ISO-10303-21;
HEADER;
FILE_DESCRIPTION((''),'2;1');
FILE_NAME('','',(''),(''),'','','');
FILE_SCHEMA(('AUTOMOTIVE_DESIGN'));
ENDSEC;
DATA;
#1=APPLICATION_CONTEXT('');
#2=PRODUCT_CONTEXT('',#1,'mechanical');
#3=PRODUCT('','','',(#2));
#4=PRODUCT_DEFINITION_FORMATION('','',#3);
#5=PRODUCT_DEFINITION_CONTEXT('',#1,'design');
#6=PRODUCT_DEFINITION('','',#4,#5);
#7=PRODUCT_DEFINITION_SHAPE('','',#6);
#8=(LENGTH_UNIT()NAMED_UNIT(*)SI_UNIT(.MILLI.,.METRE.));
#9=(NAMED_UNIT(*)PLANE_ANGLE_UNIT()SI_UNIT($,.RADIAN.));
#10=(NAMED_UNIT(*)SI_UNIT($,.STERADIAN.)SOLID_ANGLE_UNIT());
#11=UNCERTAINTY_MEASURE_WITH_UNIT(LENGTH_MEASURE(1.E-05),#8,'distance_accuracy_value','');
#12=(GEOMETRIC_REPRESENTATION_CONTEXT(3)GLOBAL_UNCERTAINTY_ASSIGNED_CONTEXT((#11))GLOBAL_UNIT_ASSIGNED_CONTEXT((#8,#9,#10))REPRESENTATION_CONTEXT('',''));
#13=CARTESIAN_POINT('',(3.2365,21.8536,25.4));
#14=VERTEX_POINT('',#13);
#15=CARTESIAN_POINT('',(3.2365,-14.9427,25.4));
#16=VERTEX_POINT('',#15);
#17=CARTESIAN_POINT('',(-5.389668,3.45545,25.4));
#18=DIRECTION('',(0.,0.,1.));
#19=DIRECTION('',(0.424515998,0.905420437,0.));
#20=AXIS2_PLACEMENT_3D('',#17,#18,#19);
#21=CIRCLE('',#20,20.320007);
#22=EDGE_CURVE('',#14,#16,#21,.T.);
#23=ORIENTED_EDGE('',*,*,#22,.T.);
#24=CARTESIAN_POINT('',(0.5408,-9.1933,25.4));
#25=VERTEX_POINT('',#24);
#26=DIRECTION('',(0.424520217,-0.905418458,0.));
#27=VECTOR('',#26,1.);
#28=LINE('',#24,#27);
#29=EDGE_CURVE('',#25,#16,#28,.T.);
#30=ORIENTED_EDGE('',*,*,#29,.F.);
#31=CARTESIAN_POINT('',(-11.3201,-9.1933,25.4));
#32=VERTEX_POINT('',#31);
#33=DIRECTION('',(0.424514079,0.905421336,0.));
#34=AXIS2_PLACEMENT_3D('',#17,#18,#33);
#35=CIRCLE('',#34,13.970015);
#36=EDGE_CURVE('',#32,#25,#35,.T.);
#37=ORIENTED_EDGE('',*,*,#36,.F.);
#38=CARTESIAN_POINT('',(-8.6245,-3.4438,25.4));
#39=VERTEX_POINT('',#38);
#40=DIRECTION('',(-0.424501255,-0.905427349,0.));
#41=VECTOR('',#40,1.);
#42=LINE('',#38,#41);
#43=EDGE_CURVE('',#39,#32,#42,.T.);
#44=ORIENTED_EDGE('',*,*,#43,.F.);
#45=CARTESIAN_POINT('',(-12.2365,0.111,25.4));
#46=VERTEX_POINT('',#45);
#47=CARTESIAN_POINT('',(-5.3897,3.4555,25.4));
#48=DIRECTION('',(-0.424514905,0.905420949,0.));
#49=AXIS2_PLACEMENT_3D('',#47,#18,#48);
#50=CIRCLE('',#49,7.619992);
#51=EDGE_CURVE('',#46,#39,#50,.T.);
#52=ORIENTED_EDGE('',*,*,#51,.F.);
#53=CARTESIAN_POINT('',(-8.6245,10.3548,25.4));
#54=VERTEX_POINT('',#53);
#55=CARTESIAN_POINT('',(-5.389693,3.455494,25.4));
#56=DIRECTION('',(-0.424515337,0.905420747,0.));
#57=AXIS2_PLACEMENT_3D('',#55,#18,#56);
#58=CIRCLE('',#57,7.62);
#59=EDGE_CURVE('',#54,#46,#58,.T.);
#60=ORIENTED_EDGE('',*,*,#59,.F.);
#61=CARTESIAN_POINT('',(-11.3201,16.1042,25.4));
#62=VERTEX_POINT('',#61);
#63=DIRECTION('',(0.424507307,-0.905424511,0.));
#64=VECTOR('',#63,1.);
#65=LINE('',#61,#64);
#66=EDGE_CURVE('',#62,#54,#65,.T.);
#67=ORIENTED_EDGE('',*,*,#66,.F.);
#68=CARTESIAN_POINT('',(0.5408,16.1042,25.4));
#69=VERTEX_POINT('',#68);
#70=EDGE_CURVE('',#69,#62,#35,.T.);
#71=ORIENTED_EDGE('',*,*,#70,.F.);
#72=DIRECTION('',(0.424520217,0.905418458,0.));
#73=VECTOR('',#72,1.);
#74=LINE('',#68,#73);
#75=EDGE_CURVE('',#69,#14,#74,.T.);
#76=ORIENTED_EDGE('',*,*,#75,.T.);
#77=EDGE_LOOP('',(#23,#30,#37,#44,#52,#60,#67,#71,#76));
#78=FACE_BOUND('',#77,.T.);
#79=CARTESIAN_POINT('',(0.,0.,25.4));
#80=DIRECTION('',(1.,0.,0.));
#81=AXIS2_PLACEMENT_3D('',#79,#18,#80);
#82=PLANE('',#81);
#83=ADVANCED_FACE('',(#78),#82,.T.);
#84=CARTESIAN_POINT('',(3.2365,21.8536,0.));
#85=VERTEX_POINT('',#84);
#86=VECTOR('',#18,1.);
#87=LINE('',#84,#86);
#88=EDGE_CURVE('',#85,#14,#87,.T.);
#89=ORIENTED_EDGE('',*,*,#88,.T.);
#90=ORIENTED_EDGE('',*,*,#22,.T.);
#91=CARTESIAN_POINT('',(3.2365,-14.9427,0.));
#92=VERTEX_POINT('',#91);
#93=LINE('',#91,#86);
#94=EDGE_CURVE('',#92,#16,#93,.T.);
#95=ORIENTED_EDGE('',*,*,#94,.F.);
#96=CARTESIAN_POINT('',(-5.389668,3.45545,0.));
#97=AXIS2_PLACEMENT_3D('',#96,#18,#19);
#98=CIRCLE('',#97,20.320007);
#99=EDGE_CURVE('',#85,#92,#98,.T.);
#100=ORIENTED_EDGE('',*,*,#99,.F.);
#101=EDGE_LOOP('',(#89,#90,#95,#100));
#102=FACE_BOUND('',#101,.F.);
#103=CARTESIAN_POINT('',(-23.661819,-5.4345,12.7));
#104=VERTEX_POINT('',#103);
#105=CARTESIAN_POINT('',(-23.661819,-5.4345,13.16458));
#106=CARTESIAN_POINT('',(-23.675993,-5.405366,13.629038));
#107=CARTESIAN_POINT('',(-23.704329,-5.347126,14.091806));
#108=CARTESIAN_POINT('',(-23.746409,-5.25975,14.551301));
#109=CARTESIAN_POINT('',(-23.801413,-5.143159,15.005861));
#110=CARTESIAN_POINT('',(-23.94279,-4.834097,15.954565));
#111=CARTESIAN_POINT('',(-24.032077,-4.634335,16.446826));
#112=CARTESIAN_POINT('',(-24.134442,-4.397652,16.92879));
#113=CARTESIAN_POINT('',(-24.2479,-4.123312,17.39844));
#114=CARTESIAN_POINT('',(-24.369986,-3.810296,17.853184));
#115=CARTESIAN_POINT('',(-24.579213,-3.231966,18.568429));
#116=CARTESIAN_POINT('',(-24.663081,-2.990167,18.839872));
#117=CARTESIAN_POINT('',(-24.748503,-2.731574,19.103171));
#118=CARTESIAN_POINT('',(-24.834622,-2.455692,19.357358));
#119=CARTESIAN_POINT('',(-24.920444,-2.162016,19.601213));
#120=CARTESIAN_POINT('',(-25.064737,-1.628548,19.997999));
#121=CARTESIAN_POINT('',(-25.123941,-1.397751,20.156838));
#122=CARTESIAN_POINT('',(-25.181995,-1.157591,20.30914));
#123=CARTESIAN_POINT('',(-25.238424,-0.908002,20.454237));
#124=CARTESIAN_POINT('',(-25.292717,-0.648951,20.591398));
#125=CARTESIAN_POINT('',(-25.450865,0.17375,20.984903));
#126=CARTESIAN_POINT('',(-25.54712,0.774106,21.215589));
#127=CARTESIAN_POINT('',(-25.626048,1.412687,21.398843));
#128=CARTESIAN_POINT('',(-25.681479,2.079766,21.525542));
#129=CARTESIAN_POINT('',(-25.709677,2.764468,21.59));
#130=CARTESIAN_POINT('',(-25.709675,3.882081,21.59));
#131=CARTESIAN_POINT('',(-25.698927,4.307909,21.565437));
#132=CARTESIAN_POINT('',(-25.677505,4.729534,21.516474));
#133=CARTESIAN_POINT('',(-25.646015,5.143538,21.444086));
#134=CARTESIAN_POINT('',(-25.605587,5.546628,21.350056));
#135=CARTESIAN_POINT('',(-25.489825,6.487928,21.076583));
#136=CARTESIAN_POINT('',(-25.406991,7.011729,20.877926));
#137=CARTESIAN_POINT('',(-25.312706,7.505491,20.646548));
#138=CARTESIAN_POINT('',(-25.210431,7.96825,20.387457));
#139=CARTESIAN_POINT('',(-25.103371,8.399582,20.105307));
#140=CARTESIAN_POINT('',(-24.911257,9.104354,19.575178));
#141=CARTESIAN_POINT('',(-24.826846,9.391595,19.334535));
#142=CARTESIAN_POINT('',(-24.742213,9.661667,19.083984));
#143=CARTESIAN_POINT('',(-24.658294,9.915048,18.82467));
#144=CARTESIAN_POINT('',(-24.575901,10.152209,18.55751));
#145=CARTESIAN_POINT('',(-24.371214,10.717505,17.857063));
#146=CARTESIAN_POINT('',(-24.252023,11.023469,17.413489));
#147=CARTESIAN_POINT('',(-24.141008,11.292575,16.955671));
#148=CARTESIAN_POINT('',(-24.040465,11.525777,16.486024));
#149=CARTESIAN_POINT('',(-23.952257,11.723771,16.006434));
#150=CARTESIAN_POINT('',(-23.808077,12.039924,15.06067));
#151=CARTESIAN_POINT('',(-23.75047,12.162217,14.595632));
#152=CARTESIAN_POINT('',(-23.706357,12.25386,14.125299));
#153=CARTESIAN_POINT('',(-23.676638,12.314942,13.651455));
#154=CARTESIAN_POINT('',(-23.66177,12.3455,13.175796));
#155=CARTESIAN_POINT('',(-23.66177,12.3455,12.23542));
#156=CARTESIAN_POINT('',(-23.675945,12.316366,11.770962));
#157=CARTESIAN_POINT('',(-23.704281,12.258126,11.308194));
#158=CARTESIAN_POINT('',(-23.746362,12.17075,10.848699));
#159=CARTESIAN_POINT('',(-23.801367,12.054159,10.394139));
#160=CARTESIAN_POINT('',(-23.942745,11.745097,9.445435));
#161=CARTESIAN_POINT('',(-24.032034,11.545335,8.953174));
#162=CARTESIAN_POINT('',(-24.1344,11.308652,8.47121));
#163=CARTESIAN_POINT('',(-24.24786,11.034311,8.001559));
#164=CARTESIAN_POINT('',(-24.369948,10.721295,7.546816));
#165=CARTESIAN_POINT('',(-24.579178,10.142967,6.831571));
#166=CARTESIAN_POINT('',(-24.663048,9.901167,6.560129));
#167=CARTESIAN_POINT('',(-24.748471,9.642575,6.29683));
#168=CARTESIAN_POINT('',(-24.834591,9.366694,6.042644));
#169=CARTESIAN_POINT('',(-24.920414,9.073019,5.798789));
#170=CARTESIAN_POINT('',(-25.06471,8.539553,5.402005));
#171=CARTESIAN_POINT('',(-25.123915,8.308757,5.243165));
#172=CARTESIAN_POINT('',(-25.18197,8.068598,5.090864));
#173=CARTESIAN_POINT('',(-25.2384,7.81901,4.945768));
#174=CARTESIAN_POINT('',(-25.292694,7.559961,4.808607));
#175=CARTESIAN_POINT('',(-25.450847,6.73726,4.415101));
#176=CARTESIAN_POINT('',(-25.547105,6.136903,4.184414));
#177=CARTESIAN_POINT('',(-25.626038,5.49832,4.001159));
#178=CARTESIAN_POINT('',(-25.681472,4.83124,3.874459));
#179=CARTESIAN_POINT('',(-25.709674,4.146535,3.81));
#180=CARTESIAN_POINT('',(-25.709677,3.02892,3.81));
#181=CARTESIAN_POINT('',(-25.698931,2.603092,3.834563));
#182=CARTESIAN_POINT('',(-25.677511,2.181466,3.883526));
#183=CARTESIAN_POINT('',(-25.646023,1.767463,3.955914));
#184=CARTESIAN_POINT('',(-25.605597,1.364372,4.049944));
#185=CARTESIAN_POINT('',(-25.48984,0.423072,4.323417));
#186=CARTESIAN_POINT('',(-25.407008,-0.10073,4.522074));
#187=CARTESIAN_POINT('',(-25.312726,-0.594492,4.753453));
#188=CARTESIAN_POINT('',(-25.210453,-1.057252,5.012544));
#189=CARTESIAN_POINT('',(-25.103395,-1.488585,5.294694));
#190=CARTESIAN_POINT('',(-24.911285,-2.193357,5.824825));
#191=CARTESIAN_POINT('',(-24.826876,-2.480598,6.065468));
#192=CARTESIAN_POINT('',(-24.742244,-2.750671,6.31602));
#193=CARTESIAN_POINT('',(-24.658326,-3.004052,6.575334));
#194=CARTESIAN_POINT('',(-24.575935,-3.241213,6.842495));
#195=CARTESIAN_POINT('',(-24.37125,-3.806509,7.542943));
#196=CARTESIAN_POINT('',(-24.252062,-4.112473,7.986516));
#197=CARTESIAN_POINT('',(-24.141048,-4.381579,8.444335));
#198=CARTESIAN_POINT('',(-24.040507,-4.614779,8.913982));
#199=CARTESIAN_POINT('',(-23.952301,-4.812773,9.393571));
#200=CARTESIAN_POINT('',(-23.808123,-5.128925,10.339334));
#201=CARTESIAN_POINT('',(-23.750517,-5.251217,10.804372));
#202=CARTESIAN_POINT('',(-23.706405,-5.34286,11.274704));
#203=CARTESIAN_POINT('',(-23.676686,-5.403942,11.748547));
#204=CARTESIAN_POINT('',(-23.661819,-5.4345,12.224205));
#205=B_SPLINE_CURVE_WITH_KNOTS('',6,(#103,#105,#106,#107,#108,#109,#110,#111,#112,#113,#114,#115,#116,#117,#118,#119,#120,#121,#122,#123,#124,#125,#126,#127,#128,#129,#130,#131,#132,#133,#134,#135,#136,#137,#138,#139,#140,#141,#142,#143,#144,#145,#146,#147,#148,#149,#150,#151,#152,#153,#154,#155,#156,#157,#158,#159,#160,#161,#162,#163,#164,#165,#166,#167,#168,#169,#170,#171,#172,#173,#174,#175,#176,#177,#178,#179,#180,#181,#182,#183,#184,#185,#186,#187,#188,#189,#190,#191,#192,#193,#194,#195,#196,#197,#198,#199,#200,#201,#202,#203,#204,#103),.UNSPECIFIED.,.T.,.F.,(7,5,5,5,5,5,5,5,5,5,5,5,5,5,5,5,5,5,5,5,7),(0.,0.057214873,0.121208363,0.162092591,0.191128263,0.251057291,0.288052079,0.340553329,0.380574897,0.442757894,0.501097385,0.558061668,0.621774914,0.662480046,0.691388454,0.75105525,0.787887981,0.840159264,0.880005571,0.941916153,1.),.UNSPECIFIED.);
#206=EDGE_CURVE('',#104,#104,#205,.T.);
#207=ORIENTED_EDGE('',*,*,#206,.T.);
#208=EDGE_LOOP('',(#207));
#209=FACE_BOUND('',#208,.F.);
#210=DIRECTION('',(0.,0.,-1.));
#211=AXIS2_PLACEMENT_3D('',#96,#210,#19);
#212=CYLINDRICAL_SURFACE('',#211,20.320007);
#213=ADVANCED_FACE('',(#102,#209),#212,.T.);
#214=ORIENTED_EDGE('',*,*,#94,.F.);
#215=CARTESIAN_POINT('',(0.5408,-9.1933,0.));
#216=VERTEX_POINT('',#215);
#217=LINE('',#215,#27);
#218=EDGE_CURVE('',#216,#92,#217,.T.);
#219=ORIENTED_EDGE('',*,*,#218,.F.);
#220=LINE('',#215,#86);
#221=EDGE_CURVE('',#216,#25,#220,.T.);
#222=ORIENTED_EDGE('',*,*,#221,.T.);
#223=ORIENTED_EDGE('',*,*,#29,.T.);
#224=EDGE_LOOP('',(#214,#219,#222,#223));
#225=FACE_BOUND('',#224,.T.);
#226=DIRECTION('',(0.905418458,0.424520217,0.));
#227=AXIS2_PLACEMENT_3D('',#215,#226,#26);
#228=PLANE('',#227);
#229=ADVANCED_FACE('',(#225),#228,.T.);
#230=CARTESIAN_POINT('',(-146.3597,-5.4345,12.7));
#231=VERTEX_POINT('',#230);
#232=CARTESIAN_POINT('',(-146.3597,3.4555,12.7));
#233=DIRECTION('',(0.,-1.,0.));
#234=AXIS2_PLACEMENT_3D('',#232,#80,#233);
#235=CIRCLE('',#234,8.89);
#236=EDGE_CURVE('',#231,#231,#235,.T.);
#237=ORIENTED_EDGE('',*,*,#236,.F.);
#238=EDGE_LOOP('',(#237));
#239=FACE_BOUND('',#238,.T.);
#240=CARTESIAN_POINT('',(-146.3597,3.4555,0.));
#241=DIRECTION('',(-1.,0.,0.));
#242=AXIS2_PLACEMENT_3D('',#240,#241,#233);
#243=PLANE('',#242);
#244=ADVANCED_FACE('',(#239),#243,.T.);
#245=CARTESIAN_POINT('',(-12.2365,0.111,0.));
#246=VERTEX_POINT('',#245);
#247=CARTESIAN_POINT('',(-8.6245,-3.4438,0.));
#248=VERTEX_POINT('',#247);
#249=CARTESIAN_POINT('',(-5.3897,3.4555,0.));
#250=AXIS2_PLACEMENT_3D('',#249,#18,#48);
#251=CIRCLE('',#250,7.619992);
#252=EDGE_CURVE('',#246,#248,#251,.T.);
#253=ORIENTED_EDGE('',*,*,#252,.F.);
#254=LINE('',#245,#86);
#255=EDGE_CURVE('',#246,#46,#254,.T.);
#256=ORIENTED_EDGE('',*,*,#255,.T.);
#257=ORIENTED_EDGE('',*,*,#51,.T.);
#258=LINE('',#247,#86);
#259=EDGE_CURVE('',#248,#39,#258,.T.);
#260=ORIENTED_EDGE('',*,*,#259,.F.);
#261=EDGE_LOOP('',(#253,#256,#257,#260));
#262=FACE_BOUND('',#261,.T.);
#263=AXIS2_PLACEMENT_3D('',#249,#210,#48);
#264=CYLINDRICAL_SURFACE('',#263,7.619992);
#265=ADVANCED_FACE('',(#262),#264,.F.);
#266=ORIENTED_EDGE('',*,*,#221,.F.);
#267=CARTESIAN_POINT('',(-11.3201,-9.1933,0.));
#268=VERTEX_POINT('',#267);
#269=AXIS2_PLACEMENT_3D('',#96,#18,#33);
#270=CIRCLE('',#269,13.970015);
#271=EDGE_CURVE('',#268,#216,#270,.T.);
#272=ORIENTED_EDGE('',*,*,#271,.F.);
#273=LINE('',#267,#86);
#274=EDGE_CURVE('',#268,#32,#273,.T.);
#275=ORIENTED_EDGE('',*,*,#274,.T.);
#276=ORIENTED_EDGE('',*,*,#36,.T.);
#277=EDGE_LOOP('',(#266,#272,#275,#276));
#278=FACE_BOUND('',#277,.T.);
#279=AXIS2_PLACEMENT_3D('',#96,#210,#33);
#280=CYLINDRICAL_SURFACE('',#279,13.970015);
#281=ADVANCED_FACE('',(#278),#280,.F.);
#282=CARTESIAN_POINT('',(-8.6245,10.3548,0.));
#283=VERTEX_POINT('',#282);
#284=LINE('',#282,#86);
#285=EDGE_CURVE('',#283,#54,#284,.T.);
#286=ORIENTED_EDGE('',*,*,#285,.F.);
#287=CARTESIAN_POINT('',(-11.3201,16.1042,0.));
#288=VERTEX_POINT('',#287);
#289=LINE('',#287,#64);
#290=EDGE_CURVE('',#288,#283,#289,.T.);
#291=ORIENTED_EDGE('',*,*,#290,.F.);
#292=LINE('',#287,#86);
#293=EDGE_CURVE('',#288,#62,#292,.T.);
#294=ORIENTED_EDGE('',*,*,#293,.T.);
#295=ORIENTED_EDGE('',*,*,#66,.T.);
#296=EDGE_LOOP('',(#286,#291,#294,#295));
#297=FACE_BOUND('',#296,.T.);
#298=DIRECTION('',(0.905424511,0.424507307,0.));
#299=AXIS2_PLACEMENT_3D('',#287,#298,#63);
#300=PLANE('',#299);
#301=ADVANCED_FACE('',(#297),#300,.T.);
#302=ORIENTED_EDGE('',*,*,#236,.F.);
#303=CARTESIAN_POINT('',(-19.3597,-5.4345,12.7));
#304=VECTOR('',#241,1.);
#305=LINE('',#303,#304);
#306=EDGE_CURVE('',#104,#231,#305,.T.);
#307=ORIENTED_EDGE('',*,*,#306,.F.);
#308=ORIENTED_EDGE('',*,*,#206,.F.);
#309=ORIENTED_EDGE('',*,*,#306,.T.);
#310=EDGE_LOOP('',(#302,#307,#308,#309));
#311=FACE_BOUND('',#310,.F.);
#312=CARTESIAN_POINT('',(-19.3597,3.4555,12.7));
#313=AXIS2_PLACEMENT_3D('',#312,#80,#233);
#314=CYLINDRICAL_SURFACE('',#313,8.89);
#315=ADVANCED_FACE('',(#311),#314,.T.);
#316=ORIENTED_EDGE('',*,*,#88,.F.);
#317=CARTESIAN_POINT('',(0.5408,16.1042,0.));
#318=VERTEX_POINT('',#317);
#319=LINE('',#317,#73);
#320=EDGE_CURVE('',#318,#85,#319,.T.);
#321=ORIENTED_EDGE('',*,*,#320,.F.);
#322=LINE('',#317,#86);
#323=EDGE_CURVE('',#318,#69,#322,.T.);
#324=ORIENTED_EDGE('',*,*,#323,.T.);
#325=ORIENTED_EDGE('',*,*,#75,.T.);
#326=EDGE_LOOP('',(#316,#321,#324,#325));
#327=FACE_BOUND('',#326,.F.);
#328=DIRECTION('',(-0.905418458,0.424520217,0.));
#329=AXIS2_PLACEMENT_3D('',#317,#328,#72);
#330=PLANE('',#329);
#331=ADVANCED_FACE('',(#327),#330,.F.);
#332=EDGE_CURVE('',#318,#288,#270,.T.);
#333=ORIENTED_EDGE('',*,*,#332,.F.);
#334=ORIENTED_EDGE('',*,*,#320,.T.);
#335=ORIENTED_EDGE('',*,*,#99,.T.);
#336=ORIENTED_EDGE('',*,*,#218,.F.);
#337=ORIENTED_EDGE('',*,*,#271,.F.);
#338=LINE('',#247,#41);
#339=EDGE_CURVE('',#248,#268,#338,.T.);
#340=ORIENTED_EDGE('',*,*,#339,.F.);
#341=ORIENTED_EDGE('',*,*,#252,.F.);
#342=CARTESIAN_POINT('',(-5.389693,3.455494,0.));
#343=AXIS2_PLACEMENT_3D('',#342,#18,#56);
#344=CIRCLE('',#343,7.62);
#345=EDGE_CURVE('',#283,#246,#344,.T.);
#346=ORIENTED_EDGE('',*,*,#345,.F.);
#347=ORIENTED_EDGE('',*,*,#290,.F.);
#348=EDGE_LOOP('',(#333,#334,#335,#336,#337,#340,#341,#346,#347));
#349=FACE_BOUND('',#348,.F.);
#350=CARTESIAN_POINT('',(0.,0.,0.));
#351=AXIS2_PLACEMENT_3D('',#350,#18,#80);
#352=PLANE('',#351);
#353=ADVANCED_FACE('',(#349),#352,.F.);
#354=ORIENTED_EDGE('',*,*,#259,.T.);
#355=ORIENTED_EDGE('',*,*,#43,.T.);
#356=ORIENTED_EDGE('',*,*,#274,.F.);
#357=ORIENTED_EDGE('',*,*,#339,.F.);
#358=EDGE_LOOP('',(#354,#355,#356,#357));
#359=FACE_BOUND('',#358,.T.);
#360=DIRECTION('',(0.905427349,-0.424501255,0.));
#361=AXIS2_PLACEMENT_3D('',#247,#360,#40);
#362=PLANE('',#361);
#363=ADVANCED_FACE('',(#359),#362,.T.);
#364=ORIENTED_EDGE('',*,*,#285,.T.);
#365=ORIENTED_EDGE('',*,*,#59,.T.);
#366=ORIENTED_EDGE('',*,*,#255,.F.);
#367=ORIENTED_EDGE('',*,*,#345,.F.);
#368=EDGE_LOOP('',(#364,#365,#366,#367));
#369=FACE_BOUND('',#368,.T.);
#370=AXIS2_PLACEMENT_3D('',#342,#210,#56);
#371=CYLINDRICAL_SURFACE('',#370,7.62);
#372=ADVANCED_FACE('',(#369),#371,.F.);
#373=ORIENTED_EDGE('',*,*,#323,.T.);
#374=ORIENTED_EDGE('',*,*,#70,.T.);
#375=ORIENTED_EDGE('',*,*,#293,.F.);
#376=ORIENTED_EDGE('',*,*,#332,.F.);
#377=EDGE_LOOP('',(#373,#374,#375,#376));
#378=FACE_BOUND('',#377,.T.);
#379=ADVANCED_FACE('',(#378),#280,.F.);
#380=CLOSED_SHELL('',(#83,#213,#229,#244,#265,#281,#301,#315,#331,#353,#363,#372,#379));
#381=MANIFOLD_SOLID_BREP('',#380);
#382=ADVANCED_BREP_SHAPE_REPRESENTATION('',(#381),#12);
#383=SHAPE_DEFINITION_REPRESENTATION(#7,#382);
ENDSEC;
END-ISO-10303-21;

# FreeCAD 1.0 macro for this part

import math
import FreeCAD as App
import Part
import Sketcher
from FreeCAD import Vector
Q = App.Units.Quantity

doc = App.newDocument("Part")
body = doc.addObject("PartDesign::Body", "Body")

# Sketch on XY plane
sketch1 = doc.addObject("Sketcher::SketchObject", "Sketch")
body.addObject(sketch1)
sketch1.AttachmentSupport = (doc.XY_Plane, [""])
sketch1.MapMode = "FlatFace"
sketch1.addGeometry(Part.ArcOfCircle(Part.Circle(Vector(-5, 3, 0), Vector(0, 0, 1), 14), math.radians(65), math.radians(115)), False)
sketch1.addGeometry(Part.LineSegment(Vector(1, 16, 0), Vector(3, 22, 0)), False)
sketch1.addGeometry(Part.ArcOfCircle(Part.Circle(Vector(-5, 3, 0), Vector(0, 0, 1), 20), math.radians(65), math.radians(295)), False)
sketch1.addGeometry(Part.LineSegment(Vector(3, -15, 0), Vector(1, -9, 0)), False)
sketch1.addGeometry(Part.ArcOfCircle(Part.Circle(Vector(-5, 3, 0), Vector(0, 0, 1), 14), math.radians(-115), math.radians(-65)), False)
sketch1.addGeometry(Part.LineSegment(Vector(-11, -9, 0), Vector(-9, -3, 0)), False)
sketch1.addGeometry(Part.ArcOfCircle(Part.Circle(Vector(-5, 3, 0), Vector(0, 0, 1), 8), math.radians(-154), math.radians(-115)), False)
sketch1.addGeometry(Part.ArcOfCircle(Part.Circle(Vector(-5, 3, 0), Vector(0, 0, 1), 8), math.radians(115), math.radians(206)), False)
sketch1.addGeometry(Part.LineSegment(Vector(-9, 10, 0), Vector(-11, 16, 0)), False)
sketch1.addConstraint(Sketcher.Constraint("Coincident", 0, 1, 1, 1))
sketch1.addConstraint(Sketcher.Constraint("Coincident", 1, 2, 2, 1))
sketch1.addConstraint(Sketcher.Constraint("Coincident", 2, 2, 3, 1))
sketch1.addConstraint(Sketcher.Constraint("Coincident", 3, 2, 4, 2))
sketch1.addConstraint(Sketcher.Constraint("Coincident", 4, 1, 5, 1))
sketch1.addConstraint(Sketcher.Constraint("Coincident", 5, 2, 6, 2))
sketch1.addConstraint(Sketcher.Constraint("Tangent", 6, 1, 7, 2))
sketch1.addConstraint(Sketcher.Constraint("Coincident", 7, 1, 8, 1))
sketch1.addConstraint(Sketcher.Constraint("Coincident", 8, 2, 0, 2))
sketch1.addConstraint(Sketcher.Constraint("Coincident", 2, 3, 0, 3))
sketch1.addConstraint(Sketcher.Constraint("Coincident", 4, 3, 0, 3))
sketch1.addConstraint(Sketcher.Constraint("Coincident", 6, 3, 0, 3))
sketch1.addConstraint(Sketcher.Constraint("Equal", 0, 4))
sketch1.addConstraint(Sketcher.Constraint("Equal", 6, 7))
sketch1.addConstraint(Sketcher.Constraint("Parallel", 1, 5))
sketch1.addConstraint(Sketcher.Constraint("Parallel", 3, 8))
sketch1.addConstraint(Sketcher.Constraint("Horizontal", 3, 2, 4, 1))
sketch1.addConstraint(Sketcher.Constraint("Horizontal", 0, 1, 8, 2))
sketch1.addConstraint(Sketcher.Constraint("Vertical", 1, 2, 2, 2))
sketch1.addConstraint(Sketcher.Constraint("Vertical", 0, 1, 3, 2))
sketch1.addConstraint(Sketcher.Constraint("Equal", 3, 5))
sketch1.addConstraint(Sketcher.Constraint("Radius", 2, Q("0.8 in")))
sketch1.addConstraint(Sketcher.Constraint("Radius", 6, Q("0.3 in")))
sketch1.addConstraint(Sketcher.Constraint("Angle", 1, Q("64.8797 deg")))
sketch1.addConstraint(Sketcher.Constraint("DistanceX", 0, 3, -1, 1, Q("0.2122 in")))
sketch1.addConstraint(Sketcher.Constraint("DistanceX", -1, 1, 0, 1, Q("0.0213 in")))
sketch1.addConstraint(Sketcher.Constraint("DistanceY", 2, 2, -1, 1, Q("0.5883 in")))
sketch1.addConstraint(Sketcher.Constraint("DistanceX", 6, 1, 5, 2, Q("0.1422 in")))
pad1 = doc.addObject("PartDesign::Pad", "Pad")
body.addObject(pad1)
pad1.Profile = sketch1
pad1.Length = Q("1 in")

# Sketch on YZ plane
sketch2 = doc.addObject("Sketcher::SketchObject", "Sketch001")
body.addObject(sketch2)
sketch2.AttachmentSupport = (doc.YZ_Plane, [""])
sketch2.MapMode = "FlatFace"
sketch2.AttachmentOffset = App.Placement(Vector(0, 0, -0.7621929 * 25.4), App.Rotation())
sketch2.addGeometry(Part.Circle(Vector(3, 13, 0), Vector(0, 0, 1), 9), False)
sketch2.addConstraint(Sketcher.Constraint("Diameter", 0, Q("0.7 in")))
sketch2.addConstraint(Sketcher.Constraint("DistanceY", -1, 1, 0, 3, Q("0.5 in")))
sketch2.addConstraint(Sketcher.Constraint("DistanceX", -1, 1, 0, 3, 3.4555))
pad2 = doc.addObject("PartDesign::Pad", "Pad001")
body.addObject(pad2)
pad2.Profile = sketch2
pad2.Length = Q("5 in")
pad2.Reversed = True

doc.recompute()
